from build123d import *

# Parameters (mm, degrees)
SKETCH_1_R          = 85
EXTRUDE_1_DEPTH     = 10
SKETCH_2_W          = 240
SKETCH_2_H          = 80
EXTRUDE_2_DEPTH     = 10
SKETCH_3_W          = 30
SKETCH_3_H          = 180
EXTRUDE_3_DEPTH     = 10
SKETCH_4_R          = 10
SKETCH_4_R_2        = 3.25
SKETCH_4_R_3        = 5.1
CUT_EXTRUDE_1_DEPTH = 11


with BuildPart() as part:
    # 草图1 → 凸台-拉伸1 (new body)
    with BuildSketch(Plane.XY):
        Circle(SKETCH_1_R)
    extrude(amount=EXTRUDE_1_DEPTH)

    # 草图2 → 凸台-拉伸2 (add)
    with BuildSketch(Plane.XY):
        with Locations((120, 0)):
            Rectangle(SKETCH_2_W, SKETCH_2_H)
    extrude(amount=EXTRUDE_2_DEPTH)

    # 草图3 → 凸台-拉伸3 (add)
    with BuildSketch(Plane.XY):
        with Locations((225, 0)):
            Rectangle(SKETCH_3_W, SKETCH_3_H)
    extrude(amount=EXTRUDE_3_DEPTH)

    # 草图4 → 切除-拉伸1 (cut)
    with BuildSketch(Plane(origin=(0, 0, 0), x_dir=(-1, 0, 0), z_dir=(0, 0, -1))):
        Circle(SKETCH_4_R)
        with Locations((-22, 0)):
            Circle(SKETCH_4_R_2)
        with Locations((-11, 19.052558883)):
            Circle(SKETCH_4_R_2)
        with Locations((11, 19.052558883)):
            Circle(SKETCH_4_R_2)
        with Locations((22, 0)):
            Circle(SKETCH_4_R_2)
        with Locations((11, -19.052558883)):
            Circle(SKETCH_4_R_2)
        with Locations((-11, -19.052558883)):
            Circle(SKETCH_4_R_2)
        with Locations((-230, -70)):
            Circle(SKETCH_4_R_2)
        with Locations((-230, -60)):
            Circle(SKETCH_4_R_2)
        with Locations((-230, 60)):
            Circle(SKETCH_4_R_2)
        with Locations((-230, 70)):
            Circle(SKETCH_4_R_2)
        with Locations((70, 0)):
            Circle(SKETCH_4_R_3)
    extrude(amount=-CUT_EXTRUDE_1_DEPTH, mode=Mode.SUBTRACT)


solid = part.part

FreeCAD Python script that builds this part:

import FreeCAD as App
import Part
import Sketcher

V = App.Vector
Q = App.Units.Quantity

doc = App.newDocument("Part")
body = doc.addObject("PartDesign::Body", "Body")

# Sketch on XY plane
sketch1 = body.newObject("Sketcher::SketchObject", "Sketch")
sketch1.AttachmentSupport = (doc.getObject("XY_Plane"), [""])
sketch1.MapMode = "FlatFace"
sketch1.addGeometry(Part.Circle(V(0, 0, 0), V(0, 0, 1), 85), False)
sketch1.addConstraint([
    Sketcher.Constraint("Coincident", 0, 3, -1, 1),
    Sketcher.Constraint("Diameter", 0, Q("170 mm")),
])
pad1 = body.newObject("PartDesign::Pad", "Pad")
pad1.Profile = sketch1
pad1.Length = 10

# Sketch on XY plane
sketch2 = body.newObject("Sketcher::SketchObject", "Sketch001")
sketch2.AttachmentSupport = (doc.getObject("XY_Plane"), [""])
sketch2.MapMode = "FlatFace"
sketch2.addGeometry([
    Part.LineSegment(V(0, 40, 0), V(0, -40, 0)),
    Part.LineSegment(V(0, -40, 0), V(240, -40, 0)),
    Part.LineSegment(V(240, -40, 0), V(240, 40, 0)),
    Part.LineSegment(V(240, 40, 0), V(0, 40, 0)),
], False)
sketch2.addConstraint([
    Sketcher.Constraint("Coincident", 0, 2, 1, 1),
    Sketcher.Constraint("Coincident", 1, 2, 2, 1),
    Sketcher.Constraint("Coincident", 2, 2, 3, 1),
    Sketcher.Constraint("Coincident", 3, 2, 0, 1),
    Sketcher.Constraint("Vertical", 0),
    Sketcher.Constraint("Horizontal", 1),
    Sketcher.Constraint("Vertical", 2),
    Sketcher.Constraint("Horizontal", 3),
    Sketcher.Constraint("Symmetric", 0, 2, 3, 2, -1, 1),
    Sketcher.Constraint("DistanceX", 1, 1, 1, 2, Q("240 mm")),
    Sketcher.Constraint("DistanceY", 0, 2, 0, 1, Q("80 mm")),
])
pad2 = body.newObject("PartDesign::Pad", "Pad001")
pad2.Profile = sketch2
pad2.Length = 10

# Sketch on XY plane
sketch3 = body.newObject("Sketcher::SketchObject", "Sketch002")
sketch3.AttachmentSupport = (doc.getObject("XY_Plane"), [""])
sketch3.MapMode = "FlatFace"
sketch3.addGeometry([
    Part.LineSegment(V(210, 90, 0), V(210, -90, 0)),
    Part.LineSegment(V(210, -90, 0), V(240, -90, 0)),
    Part.LineSegment(V(240, -90, 0), V(240, 90, 0)),
    Part.LineSegment(V(240, 90, 0), V(210, 90, 0)),
], False)
sketch3.addConstraint([
    Sketcher.Constraint("Coincident", 0, 2, 1, 1),
    Sketcher.Constraint("Coincident", 1, 2, 2, 1),
    Sketcher.Constraint("Coincident", 2, 2, 3, 1),
    Sketcher.Constraint("Coincident", 3, 2, 0, 1),
    Sketcher.Constraint("Vertical", 0),
    Sketcher.Constraint("Horizontal", 1),
    Sketcher.Constraint("Vertical", 2),
    Sketcher.Constraint("Horizontal", 3),
    Sketcher.Constraint("DistanceX", 1, 1, 1, 2, Q("30 mm")),
    Sketcher.Constraint("DistanceY", 0, 2, 0, 1, Q("180 mm")),
    Sketcher.Constraint("DistanceX", -1, 1, 0, 2, Q("210 mm")),
    Sketcher.Constraint("DistanceY", 0, 2, -1, 1, Q("90 mm")),
])
pad3 = body.newObject("PartDesign::Pad", "Pad002")
pad3.Profile = sketch3
pad3.Length = 10

# Sketch on XY plane
sketch4 = body.newObject("Sketcher::SketchObject", "Sketch003")
sketch4.AttachmentSupport = (doc.getObject("XY_Plane"), [""])
sketch4.MapMode = "FlatFace"
sketch4.addGeometry([
    Part.Circle(V(0, 0, 0), V(0, 0, 1), 10),  # 0
    Part.Circle(V(22, 0, 0), V(0, 0, 1), 3.2),  # 1
    Part.Circle(V(11, 19.1, 0), V(0, 0, 1), 3.2),  # 2
    Part.Circle(V(-11, 19.1, 0), V(0, 0, 1), 3.2),  # 3
    Part.Circle(V(-22, 0, 0), V(0, 0, 1), 3.2),  # 4
    Part.Circle(V(-11, -19.1, 0), V(0, 0, 1), 3.2),  # 5
    Part.Circle(V(11, -19.1, 0), V(0, 0, 1), 3.2),  # 6
    Part.Circle(V(230, -70, 0), V(0, 0, 1), 3.2),  # 7
    Part.Circle(V(230, -60, 0), V(0, 0, 1), 3.2),  # 8
    Part.Circle(V(230, 60, 0), V(0, 0, 1), 3.2),  # 9
    Part.Circle(V(230, 70, 0), V(0, 0, 1), 3.2),  # 10
    Part.Circle(V(-70, 0, 0), V(0, 0, 1), 5.1),  # 11
], False)
sketch4.addConstraint([
    Sketcher.Constraint("Coincident", 0, 3, -1, 1),
    Sketcher.Constraint("Equal", 1, 2),
    Sketcher.Constraint("Equal", 2, 3),
    Sketcher.Constraint("Equal", 3, 4),
    Sketcher.Constraint("Equal", 4, 5),
    Sketcher.Constraint("Equal", 5, 6),
    Sketcher.Constraint("Equal", 6, 7),
    Sketcher.Constraint("Equal", 7, 8),
    Sketcher.Constraint("Equal", 8, 9),
    Sketcher.Constraint("Equal", 9, 10),
    Sketcher.Constraint("Symmetric", 1, 3, 4, 3, -1, 1),
    Sketcher.Constraint("Symmetric", 2, 3, 5, 3, -1, 1),
    Sketcher.Constraint("Symmetric", 3, 3, 6, 3, -1, 1),
    Sketcher.Constraint("Symmetric", 2, 3, 3, 3, -2),
    Sketcher.Constraint("Symmetric", 8, 3, 9, 3, -1),
    Sketcher.Constraint("Symmetric", 7, 3, 10, 3, -1),
    Sketcher.Constraint("PointOnObject", 1, 3, -1),
    Sketcher.Constraint("PointOnObject", 11, 3, -1),
    Sketcher.Constraint("Vertical", 7, 3, 8, 3),
    Sketcher.Constraint("Diameter", 0, Q("20 mm")),
    Sketcher.Constraint("Diameter", 1, Q("6.5 mm")),
    Sketcher.Constraint("Diameter", 11, Q("10.2 mm")),
    Sketcher.Constraint("DistanceX", -1, 1, 1, 3, Q("22 mm")),
    Sketcher.Constraint("DistanceX", -1, 1, 2, 3, Q("11 mm")),
    Sketcher.Constraint("DistanceX", -1, 1, 7, 3, Q("230 mm")),
    Sketcher.Constraint("DistanceY", 7, 3, -1, 1, Q("70 mm")),
    Sketcher.Constraint("DistanceY", 8, 3, -1, 1, Q("60 mm")),
    Sketcher.Constraint("DistanceX", 11, 3, -1, 1, Q("70 mm")),
    Sketcher.Constraint("DistanceY", -1, 1, 2, 3, Q("19.052559 mm")),
])
pocket1 = body.newObject("PartDesign::Pocket", "Pocket")
pocket1.Profile = sketch4
pocket1.Length = 11
pocket1.Reversed = True

doc.recompute()
